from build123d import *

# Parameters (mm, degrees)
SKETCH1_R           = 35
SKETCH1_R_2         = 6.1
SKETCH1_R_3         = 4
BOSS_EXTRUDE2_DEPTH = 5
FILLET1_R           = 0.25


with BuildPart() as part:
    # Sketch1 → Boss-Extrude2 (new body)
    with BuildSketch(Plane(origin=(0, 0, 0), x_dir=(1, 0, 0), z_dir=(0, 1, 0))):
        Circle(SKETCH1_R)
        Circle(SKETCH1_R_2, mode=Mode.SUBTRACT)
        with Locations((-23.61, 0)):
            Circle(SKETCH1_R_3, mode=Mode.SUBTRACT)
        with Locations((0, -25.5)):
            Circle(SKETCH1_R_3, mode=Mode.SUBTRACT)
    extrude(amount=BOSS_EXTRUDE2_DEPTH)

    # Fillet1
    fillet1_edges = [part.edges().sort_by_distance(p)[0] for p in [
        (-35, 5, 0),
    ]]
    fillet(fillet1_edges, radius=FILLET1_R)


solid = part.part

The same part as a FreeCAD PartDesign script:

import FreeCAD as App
import Part
import Sketcher
from FreeCAD import Vector


def edges_at(feature, points):
    """Names of the edges that pass closest to the given points."""
    edges = feature.Shape.Edges
    near = lambda p: min(range(len(edges)), key=lambda i: edges[i].distToShape(Part.Vertex(*p))[0])
    return sorted({f"Edge{near(p) + 1}" for p in points})

doc = App.newDocument("Part")
body = doc.addObject("PartDesign::Body", "Body")

# Sketch on XZ plane
sketch1 = doc.addObject("Sketcher::SketchObject", "Sketch")
body.addObject(sketch1)
sketch1.AttachmentSupport = (doc.XZ_Plane, [""])
sketch1.MapMode = "FlatFace"
sketch1.addGeometry(Part.Circle(Vector(0, 0, 0), Vector(0, 0, 1), 35), False)
sketch1.addGeometry(Part.Circle(Vector(0, 25.5, 0), Vector(0, 0, 1), 4), False)
sketch1.addGeometry(Part.Circle(Vector(-23.6, 0, 0), Vector(0, 0, 1), 4), False)
sketch1.addGeometry(Part.Circle(Vector(0, 0, 0), Vector(0, 0, 1), 6.1), False)
sketch1.addConstraint(Sketcher.Constraint("Coincident", 0, 3, -1, 1))
sketch1.addConstraint(Sketcher.Constraint("Coincident", 3, 3, -1, 1))
sketch1.addConstraint(Sketcher.Constraint("Equal", 1, 2))
sketch1.addConstraint(Sketcher.Constraint("PointOnObject", 1, 3, -2))
sketch1.addConstraint(Sketcher.Constraint("PointOnObject", 2, 3, -1))
sketch1.addConstraint(Sketcher.Constraint("Diameter", 0, 70.0))
sketch1.addConstraint(Sketcher.Constraint("Diameter", 1, 8.0))
sketch1.addConstraint(Sketcher.Constraint("Diameter", 3, 12.2))
sketch1.addConstraint(Sketcher.Constraint("DistanceY", -1, 1, 1, 3, 25.5))
sketch1.addConstraint(Sketcher.Constraint("DistanceX", 2, 3, -1, 1, 23.61))
pad1 = doc.addObject("PartDesign::Pad", "Pad")
body.addObject(pad1)
pad1.Profile = sketch1
pad1.Length = 5
pad1.Reversed = True
doc.recompute()

fillet = doc.addObject("PartDesign::Fillet", "Fillet")
body.addObject(fillet)
fillet.Base = (pad1, edges_at(pad1, [(-35, 5, 0)]))
fillet.Radius = 0.25

doc.recompute()
